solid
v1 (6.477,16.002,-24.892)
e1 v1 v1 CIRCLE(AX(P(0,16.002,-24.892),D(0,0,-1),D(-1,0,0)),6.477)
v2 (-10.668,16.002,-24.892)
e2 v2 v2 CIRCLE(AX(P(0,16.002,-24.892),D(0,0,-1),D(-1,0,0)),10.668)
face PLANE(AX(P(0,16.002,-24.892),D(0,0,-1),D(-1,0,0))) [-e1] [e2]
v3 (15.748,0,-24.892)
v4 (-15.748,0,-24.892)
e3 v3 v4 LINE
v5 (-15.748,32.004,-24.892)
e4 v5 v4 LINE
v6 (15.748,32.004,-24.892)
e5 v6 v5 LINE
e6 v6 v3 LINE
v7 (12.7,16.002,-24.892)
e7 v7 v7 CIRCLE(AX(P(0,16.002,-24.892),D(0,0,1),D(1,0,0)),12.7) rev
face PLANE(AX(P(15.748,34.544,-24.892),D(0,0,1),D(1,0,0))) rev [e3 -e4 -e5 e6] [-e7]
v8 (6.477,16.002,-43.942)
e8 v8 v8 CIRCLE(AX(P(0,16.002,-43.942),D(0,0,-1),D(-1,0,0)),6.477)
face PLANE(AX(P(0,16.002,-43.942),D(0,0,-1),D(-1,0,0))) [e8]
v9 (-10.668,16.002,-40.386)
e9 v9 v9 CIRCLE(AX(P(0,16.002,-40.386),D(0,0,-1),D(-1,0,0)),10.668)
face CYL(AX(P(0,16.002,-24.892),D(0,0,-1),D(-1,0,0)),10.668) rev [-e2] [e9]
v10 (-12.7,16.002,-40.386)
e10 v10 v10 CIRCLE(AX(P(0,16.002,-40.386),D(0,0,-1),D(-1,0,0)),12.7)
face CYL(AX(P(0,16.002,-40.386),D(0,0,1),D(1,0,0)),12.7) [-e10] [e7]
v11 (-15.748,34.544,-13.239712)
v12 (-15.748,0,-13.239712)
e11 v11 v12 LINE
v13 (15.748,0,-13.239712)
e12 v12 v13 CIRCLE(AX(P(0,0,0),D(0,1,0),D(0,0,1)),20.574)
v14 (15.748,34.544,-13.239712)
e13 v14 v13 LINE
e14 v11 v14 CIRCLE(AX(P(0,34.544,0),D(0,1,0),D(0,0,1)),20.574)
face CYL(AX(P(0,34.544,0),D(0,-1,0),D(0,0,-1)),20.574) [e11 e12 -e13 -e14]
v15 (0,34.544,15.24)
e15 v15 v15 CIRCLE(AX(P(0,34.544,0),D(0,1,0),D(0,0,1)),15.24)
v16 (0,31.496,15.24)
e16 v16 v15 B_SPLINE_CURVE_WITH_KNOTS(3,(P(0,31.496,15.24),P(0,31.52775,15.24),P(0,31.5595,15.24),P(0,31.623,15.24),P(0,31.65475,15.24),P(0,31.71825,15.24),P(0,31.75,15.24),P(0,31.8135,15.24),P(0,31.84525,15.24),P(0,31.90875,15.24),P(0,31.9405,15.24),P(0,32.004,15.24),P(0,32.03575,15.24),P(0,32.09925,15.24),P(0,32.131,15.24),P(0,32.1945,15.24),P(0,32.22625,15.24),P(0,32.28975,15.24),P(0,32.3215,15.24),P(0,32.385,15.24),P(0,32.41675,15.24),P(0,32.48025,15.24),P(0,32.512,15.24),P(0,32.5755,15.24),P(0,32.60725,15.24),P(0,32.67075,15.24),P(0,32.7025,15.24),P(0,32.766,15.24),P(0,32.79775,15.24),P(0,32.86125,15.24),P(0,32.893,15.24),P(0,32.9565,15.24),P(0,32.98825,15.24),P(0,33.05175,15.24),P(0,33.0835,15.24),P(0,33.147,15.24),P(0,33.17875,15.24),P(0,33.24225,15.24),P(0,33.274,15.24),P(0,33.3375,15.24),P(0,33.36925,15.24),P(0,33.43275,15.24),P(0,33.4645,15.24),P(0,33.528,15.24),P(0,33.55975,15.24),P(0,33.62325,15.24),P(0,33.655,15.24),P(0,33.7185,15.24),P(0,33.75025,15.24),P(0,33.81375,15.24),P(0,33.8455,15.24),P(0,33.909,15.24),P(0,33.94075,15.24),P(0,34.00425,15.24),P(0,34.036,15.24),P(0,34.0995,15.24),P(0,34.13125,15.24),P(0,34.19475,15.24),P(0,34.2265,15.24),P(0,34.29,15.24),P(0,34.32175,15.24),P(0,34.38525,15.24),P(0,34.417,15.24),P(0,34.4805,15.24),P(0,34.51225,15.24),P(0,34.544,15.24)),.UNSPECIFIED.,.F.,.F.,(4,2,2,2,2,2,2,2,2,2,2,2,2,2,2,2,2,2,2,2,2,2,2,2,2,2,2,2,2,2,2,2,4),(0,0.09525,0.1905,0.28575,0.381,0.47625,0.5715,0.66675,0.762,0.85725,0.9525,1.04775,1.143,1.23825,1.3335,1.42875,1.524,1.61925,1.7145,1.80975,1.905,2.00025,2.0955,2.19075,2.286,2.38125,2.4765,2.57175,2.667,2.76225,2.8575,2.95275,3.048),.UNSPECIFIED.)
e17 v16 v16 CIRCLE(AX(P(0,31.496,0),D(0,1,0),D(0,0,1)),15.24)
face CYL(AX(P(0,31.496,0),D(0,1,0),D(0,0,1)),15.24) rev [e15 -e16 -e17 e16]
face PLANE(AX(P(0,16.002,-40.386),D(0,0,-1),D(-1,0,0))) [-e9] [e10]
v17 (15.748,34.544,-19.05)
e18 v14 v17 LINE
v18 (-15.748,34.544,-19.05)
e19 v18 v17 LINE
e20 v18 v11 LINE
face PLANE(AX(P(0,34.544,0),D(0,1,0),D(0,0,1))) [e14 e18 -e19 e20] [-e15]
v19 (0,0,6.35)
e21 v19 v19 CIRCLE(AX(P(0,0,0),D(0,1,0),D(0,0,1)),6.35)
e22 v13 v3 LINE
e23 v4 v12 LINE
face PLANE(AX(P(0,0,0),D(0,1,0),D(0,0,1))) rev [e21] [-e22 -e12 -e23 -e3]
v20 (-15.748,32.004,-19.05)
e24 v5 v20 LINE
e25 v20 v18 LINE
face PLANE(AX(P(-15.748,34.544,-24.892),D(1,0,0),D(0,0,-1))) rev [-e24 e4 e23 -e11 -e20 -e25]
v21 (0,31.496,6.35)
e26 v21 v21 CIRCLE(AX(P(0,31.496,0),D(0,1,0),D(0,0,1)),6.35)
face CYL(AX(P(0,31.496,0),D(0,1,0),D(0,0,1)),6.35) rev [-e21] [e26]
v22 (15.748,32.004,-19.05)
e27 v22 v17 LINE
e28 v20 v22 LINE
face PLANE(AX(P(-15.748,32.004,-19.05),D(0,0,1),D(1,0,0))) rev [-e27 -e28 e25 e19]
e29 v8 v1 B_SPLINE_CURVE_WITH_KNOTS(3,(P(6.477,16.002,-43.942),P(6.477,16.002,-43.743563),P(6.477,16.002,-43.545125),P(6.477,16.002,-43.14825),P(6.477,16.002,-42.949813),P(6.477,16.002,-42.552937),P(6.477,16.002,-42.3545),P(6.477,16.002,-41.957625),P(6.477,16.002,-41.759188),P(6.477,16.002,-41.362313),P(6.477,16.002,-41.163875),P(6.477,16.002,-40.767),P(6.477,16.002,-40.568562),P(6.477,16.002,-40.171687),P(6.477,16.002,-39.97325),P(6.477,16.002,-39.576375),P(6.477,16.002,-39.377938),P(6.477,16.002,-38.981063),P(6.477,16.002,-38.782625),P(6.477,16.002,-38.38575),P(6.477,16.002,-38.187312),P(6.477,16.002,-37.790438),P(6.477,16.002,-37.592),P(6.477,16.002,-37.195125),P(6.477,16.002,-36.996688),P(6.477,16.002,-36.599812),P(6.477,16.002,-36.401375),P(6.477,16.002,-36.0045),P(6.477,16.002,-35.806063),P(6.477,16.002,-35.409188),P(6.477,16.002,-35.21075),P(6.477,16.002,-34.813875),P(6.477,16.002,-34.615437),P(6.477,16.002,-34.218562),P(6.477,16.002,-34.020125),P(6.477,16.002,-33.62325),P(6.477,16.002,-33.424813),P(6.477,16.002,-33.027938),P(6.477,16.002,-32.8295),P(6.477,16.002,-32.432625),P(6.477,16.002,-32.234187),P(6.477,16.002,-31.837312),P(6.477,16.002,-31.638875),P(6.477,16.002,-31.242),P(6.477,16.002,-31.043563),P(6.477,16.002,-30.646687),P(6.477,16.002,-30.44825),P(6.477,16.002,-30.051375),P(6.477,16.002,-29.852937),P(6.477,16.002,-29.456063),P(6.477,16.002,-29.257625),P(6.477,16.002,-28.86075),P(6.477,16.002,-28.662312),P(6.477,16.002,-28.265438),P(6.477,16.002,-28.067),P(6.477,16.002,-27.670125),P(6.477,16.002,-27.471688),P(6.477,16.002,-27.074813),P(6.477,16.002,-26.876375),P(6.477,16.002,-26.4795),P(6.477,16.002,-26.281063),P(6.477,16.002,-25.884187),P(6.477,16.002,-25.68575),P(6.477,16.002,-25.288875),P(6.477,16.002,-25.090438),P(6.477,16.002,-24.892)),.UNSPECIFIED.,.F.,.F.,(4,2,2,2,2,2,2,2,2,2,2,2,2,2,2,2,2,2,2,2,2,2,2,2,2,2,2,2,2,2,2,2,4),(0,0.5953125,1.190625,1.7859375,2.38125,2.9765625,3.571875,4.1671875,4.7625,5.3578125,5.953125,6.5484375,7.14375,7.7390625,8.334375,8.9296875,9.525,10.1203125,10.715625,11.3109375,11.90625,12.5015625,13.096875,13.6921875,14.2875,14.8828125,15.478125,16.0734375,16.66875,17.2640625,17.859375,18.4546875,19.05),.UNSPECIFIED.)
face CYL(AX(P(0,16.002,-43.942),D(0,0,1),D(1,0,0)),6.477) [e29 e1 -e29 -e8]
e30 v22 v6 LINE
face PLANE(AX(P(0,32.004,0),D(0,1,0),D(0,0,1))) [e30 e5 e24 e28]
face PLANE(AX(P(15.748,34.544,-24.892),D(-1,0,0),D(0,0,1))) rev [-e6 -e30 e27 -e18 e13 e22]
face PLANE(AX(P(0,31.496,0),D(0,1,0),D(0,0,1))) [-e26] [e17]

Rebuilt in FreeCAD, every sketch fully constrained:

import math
import FreeCAD as App
import Part
import Sketcher

V = App.Vector
Q = App.Units.Quantity


def add_polygon(sketch, points):
    """Adds a closed chain of lines whose ends are joined by coincident constraints."""
    first, n = sketch.GeometryCount, len(points)
    for a, b in zip(points, points[1:] + points[:1]):
        sketch.addGeometry(Part.LineSegment(App.Vector(*a, 0), App.Vector(*b, 0)), False)
    for i in range(n):
        sketch.addConstraint(Sketcher.Constraint("Coincident", first + i, 2, first + (i + 1) % n, 1))

doc = App.newDocument("Part")
params = doc.addObject("Spreadsheet::Sheet", "Params")
for row, (alias, value) in enumerate([
    ("sketch1_radius", "0.81 in"),
    ("sketch1_width", "1.24 in"),
    ("pad1_length", "1.36 in"),
    ("sketch2_diameter", "1.2 in"),
    ("pocket1_length", "0.12 in"),
    ("sketch3_diameter", "0.5 in"),
    ("hole_diameter", "0.5 in"),
    ("sketch4_width", "1.24 in"),
    ("sketch4_height", "0.23 in"),
    ("pocket2_length", "0.1 in"),
    ("sketch5_diameter", "1 in"),
    ("sketch5_diameter2", "0.84 in"),
    ("pad2_length", "0.61 in"),
    ("sketch6_diameter", "0.51 in"),
    ("pad3_length", "0.75 in"),
    ("sketch7_diameter", "1 in"),
    ("pad4_length", "0.61 in"),
    ("sketch8_diameter", "0.84 in"),
    ("sketch8_diameter2", "0.51 in"),
    ("pocket3_length", "0.61 in"),
], start=1):
    params.set(f"A{row}", alias)
    params.set(f"B{row}", "=" + value)
    params.setAlias(f"B{row}", alias)

body = doc.addObject("PartDesign::Body", "Body")

# Sketch on XZ plane
sketch1 = body.newObject("Sketcher::SketchObject", "Sketch")
sketch1.AttachmentSupport = (doc.getObject("XZ_Plane"), [""])
sketch1.MapMode = "FlatFace"
sketch1.addGeometry(Part.LineSegment(V(15.748, -24.892, 0), V(-15.748, -24.892, 0)), False)
sketch1.addGeometry(Part.LineSegment(V(-15.748, -24.892, 0), V(-15.748, -13.239712, 0)), False)
sketch1.addGeometry(Part.ArcOfCircle(Part.Circle(V(0, 0, 0), V(0, 0, 1), 20.574), math.radians(-40.054551), math.radians(220.054551)), False)
sketch1.addGeometry(Part.LineSegment(V(15.748, -13.239712, 0), V(15.748, -24.892, 0)), False)
sketch1.addConstraint(Sketcher.Constraint("Coincident", 0, 2, 1, 1))
sketch1.addConstraint(Sketcher.Constraint("Coincident", 1, 2, 2, 2))
sketch1.addConstraint(Sketcher.Constraint("Coincident", 2, 1, 3, 1))
sketch1.addConstraint(Sketcher.Constraint("Coincident", 3, 2, 0, 1))
sketch1.addConstraint(Sketcher.Constraint("Horizontal", 0))
sketch1.addConstraint(Sketcher.Constraint("Vertical", 1))
sketch1.addConstraint(Sketcher.Constraint("Vertical", 3))
sketch1.addConstraint(Sketcher.Constraint("Coincident", 2, 3, -1, 1))
sketch1.addConstraint(Sketcher.Constraint("Horizontal", 1, 2, 2, 1))
sketch1.addConstraint(Sketcher.Constraint("Radius", 2, Q("0.81 in")))
sketch1.addConstraint(Sketcher.Constraint("DistanceX", 0, 2, 0, 1, Q("1.24 in")))
sketch1.addConstraint(Sketcher.Constraint("DistanceY", 0, 2, -1, 1, Q("0.98 in")))
sketch1.setExpression("Constraints[9]", "Params.sketch1_radius")
sketch1.setExpression("Constraints[10]", "Params.sketch1_width")
pad1 = body.newObject("PartDesign::Pad", "Pad")
pad1.Profile = sketch1
pad1.setExpression("Length", "Params.pad1_length")
pad1.Reversed = True

# Sketch on XZ plane
sketch2 = body.newObject("Sketcher::SketchObject", "Sketch001")
sketch2.AttachmentSupport = (doc.getObject("XZ_Plane"), [""])
sketch2.MapMode = "FlatFace"
sketch2.AttachmentOffset = App.Placement(V(0, 0, -1.36 * 25.4), App.Rotation())
sketch2.addGeometry(Part.Circle(V(0, 0, 0), V(0, 0, 1), 15.24), False)
sketch2.addConstraint(Sketcher.Constraint("Coincident", 0, 3, -1, 1))
sketch2.addConstraint(Sketcher.Constraint("Diameter", 0, Q("1.2 in")))
sketch2.setExpression("Constraints[1]", "Params.sketch2_diameter")
pocket1 = body.newObject("PartDesign::Pocket", "Pocket")
pocket1.Profile = sketch2
pocket1.setExpression("Length", "Params.pocket1_length")
pocket1.Reversed = True

# Sketch on XZ plane
sketch3 = body.newObject("Sketcher::SketchObject", "Sketch002")
sketch3.AttachmentSupport = (doc.getObject("XZ_Plane"), [""])
sketch3.MapMode = "FlatFace"
sketch3.AttachmentOffset = App.Placement(V(0, 0, -1.24 * 25.4), App.Rotation())
sketch3.addGeometry(Part.Circle(V(0, 0, 0), V(0, 0, 1), 6.35), False)
sketch3.addConstraint(Sketcher.Constraint("Coincident", 0, 3, -1, 1))
sketch3.addConstraint(Sketcher.Constraint("Diameter", 0, Q("0.5 in")))
sketch3.setExpression("Constraints[1]", "Params.sketch3_diameter")
doc.recompute()
hole = body.newObject("PartDesign::Hole", "Hole")
hole.Profile = sketch3
hole.ThreadType = "None"
hole.setExpression("Diameter", "Params.hole_diameter")
hole.DepthType = "ThroughAll"
hole.Reversed = True

# Sketch on XZ plane
sketch4 = body.newObject("Sketcher::SketchObject", "Sketch003")
sketch4.AttachmentSupport = (doc.getObject("XZ_Plane"), [""])
sketch4.MapMode = "FlatFace"
sketch4.AttachmentOffset = App.Placement(V(0, 0, -1.36 * 25.4), App.Rotation())
add_polygon(sketch4, [(-15.748, -24.892), (-15.748, -19.05), (15.748, -19.05), (15.748, -24.892)])  # lines 0-3
sketch4.addConstraint(Sketcher.Constraint("Vertical", 0))
sketch4.addConstraint(Sketcher.Constraint("Horizontal", 1))
sketch4.addConstraint(Sketcher.Constraint("Vertical", 2))
sketch4.addConstraint(Sketcher.Constraint("Horizontal", 3))
sketch4.addConstraint(Sketcher.Constraint("DistanceX", 1, 1, 1, 2, Q("1.24 in")))
sketch4.addConstraint(Sketcher.Constraint("DistanceY", 0, 1, 0, 2, Q("0.23 in")))
sketch4.addConstraint(Sketcher.Constraint("DistanceX", 0, 2, -1, 1, Q("0.62 in")))
sketch4.addConstraint(Sketcher.Constraint("DistanceY", 0, 2, -1, 1, Q("0.75 in")))
sketch4.setExpression("Constraints[8]", "Params.sketch4_width")
sketch4.setExpression("Constraints[9]", "Params.sketch4_height")
pocket2 = body.newObject("PartDesign::Pocket", "Pocket001")
pocket2.Profile = sketch4
pocket2.setExpression("Length", "Params.pocket2_length")
pocket2.Reversed = True

# Sketch on XY plane
sketch5 = body.newObject("Sketcher::SketchObject", "Sketch004")
sketch5.AttachmentSupport = (doc.getObject("XY_Plane"), [""])
sketch5.MapMode = "FlatFace"
sketch5.AttachmentOffset = App.Placement(V(0, 0, -0.98 * 25.4), App.Rotation())
sketch5.addGeometry(Part.Circle(V(0, 16.002, 0), V(0, 0, 1), 12.7), False)
sketch5.addGeometry(Part.Circle(V(0, 16.002, 0), V(0, 0, 1), 10.668), False)
sketch5.addConstraint(Sketcher.Constraint("Coincident", 1, 3, 0, 3))
sketch5.addConstraint(Sketcher.Constraint("PointOnObject", 0, 3, -2))
sketch5.addConstraint(Sketcher.Constraint("Diameter", 0, Q("1 in")))
sketch5.addConstraint(Sketcher.Constraint("Diameter", 1, Q("0.84 in")))
sketch5.addConstraint(Sketcher.Constraint("DistanceY", -1, 1, 0, 3, Q("0.63 in")))
sketch5.setExpression("Constraints[2]", "Params.sketch5_diameter")
sketch5.setExpression("Constraints[3]", "Params.sketch5_diameter2")
pad2 = body.newObject("PartDesign::Pad", "Pad001")
pad2.Profile = sketch5
pad2.setExpression("Length", "Params.pad2_length")
pad2.Reversed = True

# Sketch on XY plane
sketch6 = body.newObject("Sketcher::SketchObject", "Sketch005")
sketch6.AttachmentSupport = (doc.getObject("XY_Plane"), [""])
sketch6.MapMode = "FlatFace"
sketch6.AttachmentOffset = App.Placement(V(0, 0, -0.98 * 25.4), App.Rotation())
sketch6.addGeometry(Part.Circle(V(0, 16.002, 0), V(0, 0, 1), 6.477), False)
sketch6.addConstraint(Sketcher.Constraint("PointOnObject", 0, 3, -2))
sketch6.addConstraint(Sketcher.Constraint("Diameter", 0, Q("0.51 in")))
sketch6.addConstraint(Sketcher.Constraint("DistanceY", -1, 1, 0, 3, Q("0.63 in")))
sketch6.setExpression("Constraints[1]", "Params.sketch6_diameter")
pad3 = body.newObject("PartDesign::Pad", "Pad002")
pad3.Profile = sketch6
pad3.setExpression("Length", "Params.pad3_length")
pad3.Reversed = True

# Sketch on XY plane
sketch7 = body.newObject("Sketcher::SketchObject", "Sketch006")
sketch7.AttachmentSupport = (doc.getObject("XY_Plane"), [""])
sketch7.MapMode = "FlatFace"
sketch7.AttachmentOffset = App.Placement(V(0, 0, -0.98 * 25.4), App.Rotation())
sketch7.addGeometry(Part.Circle(V(0, 16.002, 0), V(0, 0, 1), 12.7), False)
sketch7.addConstraint(Sketcher.Constraint("PointOnObject", 0, 3, -2))
sketch7.addConstraint(Sketcher.Constraint("Diameter", 0, Q("1 in")))
sketch7.addConstraint(Sketcher.Constraint("DistanceY", -1, 1, 0, 3, Q("0.63 in")))
sketch7.setExpression("Constraints[1]", "Params.sketch7_diameter")
pad4 = body.newObject("PartDesign::Pad", "Pad003")
pad4.Profile = sketch7
pad4.setExpression("Length", "Params.pad4_length")
pad4.Reversed = True

# Sketch on XY plane
sketch8 = body.newObject("Sketcher::SketchObject", "Sketch007")
sketch8.AttachmentSupport = (doc.getObject("XY_Plane"), [""])
sketch8.MapMode = "FlatFace"
sketch8.AttachmentOffset = App.Placement(V(0, 0, -0.98 * 25.4), App.Rotation())
sketch8.addGeometry(Part.Circle(V(0, 16.002, 0), V(0, 0, 1), 10.668), False)
sketch8.addGeometry(Part.Circle(V(0, 16.002, 0), V(0, 0, 1), 6.477), False)
sketch8.addConstraint(Sketcher.Constraint("Coincident", 1, 3, 0, 3))
sketch8.addConstraint(Sketcher.Constraint("PointOnObject", 0, 3, -2))
sketch8.addConstraint(Sketcher.Constraint("Diameter", 0, Q("0.84 in")))
sketch8.addConstraint(Sketcher.Constraint("Diameter", 1, Q("0.51 in")))
sketch8.addConstraint(Sketcher.Constraint("DistanceY", -1, 1, 0, 3, Q("0.63 in")))
sketch8.setExpression("Constraints[2]", "Params.sketch8_diameter")
sketch8.setExpression("Constraints[3]", "Params.sketch8_diameter2")
pocket3 = body.newObject("PartDesign::Pocket", "Pocket002")
pocket3.Profile = sketch8
pocket3.setExpression("Length", "Params.pocket3_length")

doc.recompute()
